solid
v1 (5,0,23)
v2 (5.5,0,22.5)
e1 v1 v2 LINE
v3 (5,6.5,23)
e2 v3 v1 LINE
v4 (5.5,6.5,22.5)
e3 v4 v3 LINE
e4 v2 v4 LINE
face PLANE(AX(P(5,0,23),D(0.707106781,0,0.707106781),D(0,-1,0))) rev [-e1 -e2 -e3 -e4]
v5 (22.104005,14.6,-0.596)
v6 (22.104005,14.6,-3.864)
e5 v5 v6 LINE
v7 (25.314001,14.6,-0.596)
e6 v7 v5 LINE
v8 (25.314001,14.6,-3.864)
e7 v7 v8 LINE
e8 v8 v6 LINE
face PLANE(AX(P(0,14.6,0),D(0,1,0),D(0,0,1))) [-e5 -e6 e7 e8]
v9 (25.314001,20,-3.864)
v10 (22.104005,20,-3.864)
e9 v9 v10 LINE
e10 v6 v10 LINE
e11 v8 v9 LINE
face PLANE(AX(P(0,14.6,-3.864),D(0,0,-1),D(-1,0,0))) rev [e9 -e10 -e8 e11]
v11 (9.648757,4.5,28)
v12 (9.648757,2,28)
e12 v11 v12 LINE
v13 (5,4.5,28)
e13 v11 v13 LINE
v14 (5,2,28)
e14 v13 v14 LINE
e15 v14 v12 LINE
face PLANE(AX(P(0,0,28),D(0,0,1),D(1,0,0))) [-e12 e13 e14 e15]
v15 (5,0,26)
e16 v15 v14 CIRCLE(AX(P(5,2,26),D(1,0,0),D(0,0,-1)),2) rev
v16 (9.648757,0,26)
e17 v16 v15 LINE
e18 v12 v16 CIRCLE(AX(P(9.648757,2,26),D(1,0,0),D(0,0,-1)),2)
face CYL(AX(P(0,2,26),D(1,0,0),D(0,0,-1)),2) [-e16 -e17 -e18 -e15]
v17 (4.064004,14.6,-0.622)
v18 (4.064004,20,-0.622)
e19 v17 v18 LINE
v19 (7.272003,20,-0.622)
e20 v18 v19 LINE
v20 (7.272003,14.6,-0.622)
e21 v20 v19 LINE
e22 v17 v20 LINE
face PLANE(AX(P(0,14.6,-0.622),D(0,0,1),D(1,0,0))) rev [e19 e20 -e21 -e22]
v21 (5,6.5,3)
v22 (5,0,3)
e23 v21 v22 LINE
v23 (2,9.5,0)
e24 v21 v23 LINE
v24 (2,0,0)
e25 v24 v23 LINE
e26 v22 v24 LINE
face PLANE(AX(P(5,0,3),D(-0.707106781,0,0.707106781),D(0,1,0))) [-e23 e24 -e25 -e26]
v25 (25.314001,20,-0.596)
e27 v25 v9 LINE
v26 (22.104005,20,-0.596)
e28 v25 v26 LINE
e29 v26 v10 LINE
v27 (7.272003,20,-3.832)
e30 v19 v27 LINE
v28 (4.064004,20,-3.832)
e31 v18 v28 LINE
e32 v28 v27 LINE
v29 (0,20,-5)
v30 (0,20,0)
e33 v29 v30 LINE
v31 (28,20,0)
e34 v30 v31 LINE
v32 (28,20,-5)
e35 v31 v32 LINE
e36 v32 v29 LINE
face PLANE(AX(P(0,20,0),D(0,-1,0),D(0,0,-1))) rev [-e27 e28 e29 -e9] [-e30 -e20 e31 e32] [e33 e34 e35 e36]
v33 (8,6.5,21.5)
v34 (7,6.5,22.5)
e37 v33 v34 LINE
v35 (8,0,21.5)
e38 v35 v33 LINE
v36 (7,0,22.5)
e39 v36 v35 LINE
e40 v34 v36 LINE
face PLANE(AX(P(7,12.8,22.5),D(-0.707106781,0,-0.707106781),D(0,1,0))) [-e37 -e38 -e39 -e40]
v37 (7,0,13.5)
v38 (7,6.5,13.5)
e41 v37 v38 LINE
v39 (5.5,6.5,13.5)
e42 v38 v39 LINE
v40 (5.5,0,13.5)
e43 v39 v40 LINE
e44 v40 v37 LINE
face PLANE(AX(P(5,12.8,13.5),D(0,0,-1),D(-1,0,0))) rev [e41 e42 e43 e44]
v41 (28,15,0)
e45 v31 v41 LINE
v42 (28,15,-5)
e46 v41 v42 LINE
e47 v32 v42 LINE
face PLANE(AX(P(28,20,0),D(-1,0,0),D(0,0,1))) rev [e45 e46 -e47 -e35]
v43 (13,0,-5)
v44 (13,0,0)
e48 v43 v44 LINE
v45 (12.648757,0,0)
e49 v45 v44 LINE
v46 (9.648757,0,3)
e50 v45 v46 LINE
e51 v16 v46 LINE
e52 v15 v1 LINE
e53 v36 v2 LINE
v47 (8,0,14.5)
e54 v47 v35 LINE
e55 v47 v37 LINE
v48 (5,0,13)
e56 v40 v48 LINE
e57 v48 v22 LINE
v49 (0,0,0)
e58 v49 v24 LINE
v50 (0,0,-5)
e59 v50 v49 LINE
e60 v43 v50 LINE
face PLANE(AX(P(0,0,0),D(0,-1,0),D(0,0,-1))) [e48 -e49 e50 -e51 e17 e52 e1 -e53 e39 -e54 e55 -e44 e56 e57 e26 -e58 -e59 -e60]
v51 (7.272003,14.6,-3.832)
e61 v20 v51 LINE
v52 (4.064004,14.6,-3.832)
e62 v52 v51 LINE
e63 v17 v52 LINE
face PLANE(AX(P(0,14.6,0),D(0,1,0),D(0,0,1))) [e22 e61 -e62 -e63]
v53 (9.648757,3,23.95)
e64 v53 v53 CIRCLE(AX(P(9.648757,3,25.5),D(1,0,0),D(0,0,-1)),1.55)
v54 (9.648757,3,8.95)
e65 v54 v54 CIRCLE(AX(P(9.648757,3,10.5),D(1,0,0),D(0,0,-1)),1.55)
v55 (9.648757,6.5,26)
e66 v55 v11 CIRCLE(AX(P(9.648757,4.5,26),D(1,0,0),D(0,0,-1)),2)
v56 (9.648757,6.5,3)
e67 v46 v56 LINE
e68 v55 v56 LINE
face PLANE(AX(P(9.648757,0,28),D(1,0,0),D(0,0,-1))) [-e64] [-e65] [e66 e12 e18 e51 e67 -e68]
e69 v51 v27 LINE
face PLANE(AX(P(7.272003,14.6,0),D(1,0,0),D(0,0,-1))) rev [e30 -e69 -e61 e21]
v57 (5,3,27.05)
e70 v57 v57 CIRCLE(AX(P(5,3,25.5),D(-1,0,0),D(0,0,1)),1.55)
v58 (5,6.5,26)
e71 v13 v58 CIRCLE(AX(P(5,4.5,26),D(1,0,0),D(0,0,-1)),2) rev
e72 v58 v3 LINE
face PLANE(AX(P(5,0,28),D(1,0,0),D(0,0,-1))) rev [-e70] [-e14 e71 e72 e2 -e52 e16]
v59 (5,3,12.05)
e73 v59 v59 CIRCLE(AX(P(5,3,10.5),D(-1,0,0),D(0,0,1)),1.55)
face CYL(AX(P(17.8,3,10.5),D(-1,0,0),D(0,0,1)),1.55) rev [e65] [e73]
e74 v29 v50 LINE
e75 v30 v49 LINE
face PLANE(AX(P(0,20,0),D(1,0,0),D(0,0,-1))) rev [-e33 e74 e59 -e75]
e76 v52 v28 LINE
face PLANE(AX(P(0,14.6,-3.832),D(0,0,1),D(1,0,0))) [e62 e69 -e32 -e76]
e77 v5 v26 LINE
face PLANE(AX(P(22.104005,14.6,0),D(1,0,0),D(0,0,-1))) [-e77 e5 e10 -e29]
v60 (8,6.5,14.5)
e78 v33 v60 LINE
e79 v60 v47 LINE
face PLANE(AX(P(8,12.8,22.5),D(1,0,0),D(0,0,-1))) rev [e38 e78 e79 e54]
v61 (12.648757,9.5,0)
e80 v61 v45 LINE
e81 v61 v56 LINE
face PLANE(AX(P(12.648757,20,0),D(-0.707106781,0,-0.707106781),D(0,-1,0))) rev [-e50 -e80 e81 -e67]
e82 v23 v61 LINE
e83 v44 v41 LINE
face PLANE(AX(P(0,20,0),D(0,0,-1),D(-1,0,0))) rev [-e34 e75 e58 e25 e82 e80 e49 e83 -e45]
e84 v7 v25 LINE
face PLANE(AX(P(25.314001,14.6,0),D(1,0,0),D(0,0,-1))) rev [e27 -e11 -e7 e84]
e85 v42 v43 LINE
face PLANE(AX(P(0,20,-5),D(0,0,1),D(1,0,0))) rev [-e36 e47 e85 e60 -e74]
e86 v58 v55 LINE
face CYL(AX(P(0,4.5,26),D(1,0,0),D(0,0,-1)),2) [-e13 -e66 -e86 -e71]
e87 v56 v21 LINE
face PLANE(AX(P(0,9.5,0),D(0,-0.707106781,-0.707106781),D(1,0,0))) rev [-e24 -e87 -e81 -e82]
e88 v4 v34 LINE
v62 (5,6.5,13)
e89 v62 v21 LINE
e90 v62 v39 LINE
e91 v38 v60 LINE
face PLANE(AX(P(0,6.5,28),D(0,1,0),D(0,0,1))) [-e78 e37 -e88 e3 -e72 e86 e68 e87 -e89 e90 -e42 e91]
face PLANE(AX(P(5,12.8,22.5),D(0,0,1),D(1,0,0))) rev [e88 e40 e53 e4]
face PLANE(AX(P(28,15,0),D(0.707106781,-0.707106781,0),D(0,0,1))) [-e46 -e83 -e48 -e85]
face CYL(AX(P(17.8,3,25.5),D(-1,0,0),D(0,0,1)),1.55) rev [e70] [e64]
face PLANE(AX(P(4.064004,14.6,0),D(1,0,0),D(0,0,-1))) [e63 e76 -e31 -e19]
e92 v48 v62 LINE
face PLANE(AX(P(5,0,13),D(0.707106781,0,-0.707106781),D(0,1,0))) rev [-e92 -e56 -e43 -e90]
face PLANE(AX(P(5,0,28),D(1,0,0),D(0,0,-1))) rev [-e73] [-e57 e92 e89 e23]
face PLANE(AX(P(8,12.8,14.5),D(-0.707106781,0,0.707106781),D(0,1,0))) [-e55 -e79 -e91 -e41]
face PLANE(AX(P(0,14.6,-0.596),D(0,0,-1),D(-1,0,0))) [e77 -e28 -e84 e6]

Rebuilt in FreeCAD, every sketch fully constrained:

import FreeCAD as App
import Part
import Sketcher

V = App.Vector
Q = App.Units.Quantity


def edges_at(feature, points):
    """Names of the edges that pass closest to the given points."""
    edges = feature.Shape.Edges
    near = lambda p: min(range(len(edges)), key=lambda i: edges[i].distToShape(Part.Vertex(*p))[0])
    return sorted({f"Edge{near(p) + 1}" for p in points})


def add_polygon(sketch, points):
    """Adds a closed chain of lines whose ends are joined by coincident constraints."""
    first, n = sketch.GeometryCount, len(points)
    for a, b in zip(points, points[1:] + points[:1]):
        sketch.addGeometry(Part.LineSegment(App.Vector(*a, 0), App.Vector(*b, 0)), False)
    for i in range(n):
        sketch.addConstraint(Sketcher.Constraint("Coincident", first + i, 2, first + (i + 1) % n, 1))

doc = App.newDocument("Part")
body = doc.addObject("PartDesign::Body", "Body")

# Sketch on XZ plane
sketch1 = body.newObject("Sketcher::SketchObject", "Sketch")
sketch1.AttachmentSupport = (doc.getObject("XZ_Plane"), [""])
sketch1.MapMode = "FlatFace"
add_polygon(sketch1, [(0, -5), (0, 0), (28, 0), (28, -5)])  # lines 0-3
sketch1.addConstraint([
    Sketcher.Constraint("Vertical", 0),
    Sketcher.Constraint("Horizontal", 1),
    Sketcher.Constraint("Vertical", 2),
    Sketcher.Constraint("Horizontal", 3),
    Sketcher.Constraint("Coincident", 0, 2, -1, 1),
    Sketcher.Constraint("DistanceX", 1, 1, 1, 2, Q("28 mm")),
    Sketcher.Constraint("DistanceY", 0, 1, 0, 2, Q("5 mm")),
])
pad1 = body.newObject("PartDesign::Pad", "Pad")
pad1.Profile = sketch1
pad1.Length = 20
pad1.Reversed = True
doc.recompute()

chamfer = body.newObject("PartDesign::Chamfer", "Chamfer")
chamfer.Base = (pad1, edges_at(pad1, [(28, 0, -2.5)]))
chamfer.Size = 15

# Sketch on XY plane
sketch2 = body.newObject("Sketcher::SketchObject", "Sketch001")
sketch2.AttachmentSupport = (doc.getObject("XY_Plane"), [""])
sketch2.MapMode = "FlatFace"
add_polygon(sketch2, [(9.6, 6.5), (5, 6.5), (5, 0), (9.6, 0)])  # lines 0-3
sketch2.addConstraint([
    Sketcher.Constraint("Horizontal", 0),
    Sketcher.Constraint("Vertical", 1),
    Sketcher.Constraint("Horizontal", 2),
    Sketcher.Constraint("Vertical", 3),
    Sketcher.Constraint("PointOnObject", 1, 2, -1),
    Sketcher.Constraint("DistanceY", 1, 2, 1, 1, Q("6.5 mm")),
    Sketcher.Constraint("DistanceX", -1, 1, 0, 2, Q("5 mm")),
    Sketcher.Constraint("DistanceX", 0, 2, 0, 1, Q("4.648757 mm")),
])
pad2 = body.newObject("PartDesign::Pad", "Pad001")
pad2.Profile = sketch2
pad2.Length = 28

# Sketch on XZ plane
sketch3 = body.newObject("Sketcher::SketchObject", "Sketch002")
sketch3.AttachmentSupport = (doc.getObject("XZ_Plane"), [""])
sketch3.MapMode = "FlatFace"
add_polygon(sketch3, [(5, 22.5), (5, 13.5), (8, 13.5), (8, 22.5)])  # lines 0-3
sketch3.addConstraint([
    Sketcher.Constraint("Vertical", 0),
    Sketcher.Constraint("Horizontal", 1),
    Sketcher.Constraint("Vertical", 2),
    Sketcher.Constraint("Horizontal", 3),
    Sketcher.Constraint("DistanceX", 1, 1, 1, 2, Q("3 mm")),
    Sketcher.Constraint("DistanceY", 0, 2, 0, 1, Q("9 mm")),
    Sketcher.Constraint("DistanceX", -1, 1, 0, 2, Q("5 mm")),
    Sketcher.Constraint("DistanceY", -1, 1, 0, 2, Q("13.5 mm")),
])
pocket1 = body.newObject("PartDesign::Pocket", "Pocket")
pocket1.Profile = sketch3
pocket1.Length = 12.8
doc.recompute()

chamfer2 = body.newObject("PartDesign::Chamfer", "Chamfer001")
chamfer2.Base = (pocket1, edges_at(pocket1, [(8, 3.25, 22.5), (8, 3.25, 13.5)]))
chamfer2.Size = 1
doc.recompute()

fillet = body.newObject("PartDesign::Fillet", "Fillet")
fillet.Base = (chamfer2, edges_at(chamfer2, [(7.324, 6.5, 28), (7.324, 0, 28)]))
fillet.Radius = 2
doc.recompute()

chamfer3 = body.newObject("PartDesign::Chamfer", "Chamfer002")
chamfer3.Base = (fillet, edges_at(fillet, [(5, 3.25, 13.5), (5, 3.25, 22.5)]))
chamfer3.Size = 0.5

# Sketch on YZ plane
sketch4 = body.newObject("Sketcher::SketchObject", "Sketch003")
sketch4.AttachmentSupport = (doc.getObject("YZ_Plane"), [""])
sketch4.MapMode = "FlatFace"
sketch4.AttachmentOffset = App.Placement(V(0, 0, 5), App.Rotation())
sketch4.addGeometry([
    Part.Circle(V(3, 25.5, 0), V(0, 0, 1), 1.6),
    Part.Circle(V(3, 10.5, 0), V(0, 0, 1), 1.6),
], False)
sketch4.addConstraint([
    Sketcher.Constraint("Equal", 0, 1),
    Sketcher.Constraint("Vertical", 0, 3, 1, 3),
    Sketcher.Constraint("Diameter", 0, Q("3.1 mm")),
    Sketcher.Constraint("DistanceX", -1, 1, 0, 3, Q("3 mm")),
    Sketcher.Constraint("DistanceY", 1, 3, 0, 3, Q("15 mm")),
    Sketcher.Constraint("DistanceY", -1, 1, 0, 3, Q("25.5 mm")),
])
pocket2 = body.newObject("PartDesign::Pocket", "Pocket001")
pocket2.Profile = sketch4
pocket2.Length = 12.8
pocket2.Reversed = True
doc.recompute()

chamfer4 = body.newObject("PartDesign::Chamfer", "Chamfer003")
chamfer4.Base = (pocket2, edges_at(pocket2, [(5, 3.25, 0), (9.649, 3.25, 0)]))
chamfer4.Size = 3
doc.recompute()

chamfer5 = body.newObject("PartDesign::Chamfer", "Chamfer004")
chamfer5.Base = (chamfer4, edges_at(chamfer4, [(7.324, 6.5, 0)]))
chamfer5.Size = 3

# Sketch on XZ plane
sketch5 = body.newObject("Sketcher::SketchObject", "Sketch004")
sketch5.AttachmentSupport = (doc.getObject("XZ_Plane"), [""])
sketch5.MapMode = "FlatFace"
sketch5.AttachmentOffset = App.Placement(V(0, 0, -20), App.Rotation())
add_polygon(sketch5, [(4.1, -3.8), (4.1, -0.6), (7.3, -0.6), (7.3, -3.8)])  # lines 0-3
add_polygon(sketch5, [(22.1, -3.9), (22.1, -0.6), (25.3, -0.6), (25.3, -3.9)])  # lines 4-7
sketch5.addConstraint([
    Sketcher.Constraint("Vertical", 0),
    Sketcher.Constraint("Horizontal", 1),
    Sketcher.Constraint("Vertical", 2),
    Sketcher.Constraint("Horizontal", 3),
    Sketcher.Constraint("Vertical", 4),
    Sketcher.Constraint("Horizontal", 5),
    Sketcher.Constraint("Vertical", 6),
    Sketcher.Constraint("Horizontal", 7),
    Sketcher.Constraint("DistanceY", 0, 1, 0, 2, Q("3.21 mm")),
    Sketcher.Constraint("DistanceX", 1, 1, 1, 2, Q("3.207999 mm")),
    Sketcher.Constraint("DistanceY", 4, 1, 4, 2, Q("3.268 mm")),
    Sketcher.Constraint("DistanceX", 0, 2, 4, 2, Q("18.040001 mm")),
    Sketcher.Constraint("DistanceY", 0, 2, -1, 1, Q("0.622 mm")),
    Sketcher.Constraint("DistanceY", 4, 2, -1, 1, Q("0.596 mm")),
    Sketcher.Constraint("DistanceX", -1, 1, 5, 2, Q("25.314001 mm")),
    Sketcher.Constraint("DistanceX", 1, 2, 5, 2, Q("18.041998 mm")),
])
pocket3 = body.newObject("PartDesign::Pocket", "Pocket002")
pocket3.Profile = sketch5
pocket3.Length = 5.4
pocket3.Reversed = True

doc.recompute()
